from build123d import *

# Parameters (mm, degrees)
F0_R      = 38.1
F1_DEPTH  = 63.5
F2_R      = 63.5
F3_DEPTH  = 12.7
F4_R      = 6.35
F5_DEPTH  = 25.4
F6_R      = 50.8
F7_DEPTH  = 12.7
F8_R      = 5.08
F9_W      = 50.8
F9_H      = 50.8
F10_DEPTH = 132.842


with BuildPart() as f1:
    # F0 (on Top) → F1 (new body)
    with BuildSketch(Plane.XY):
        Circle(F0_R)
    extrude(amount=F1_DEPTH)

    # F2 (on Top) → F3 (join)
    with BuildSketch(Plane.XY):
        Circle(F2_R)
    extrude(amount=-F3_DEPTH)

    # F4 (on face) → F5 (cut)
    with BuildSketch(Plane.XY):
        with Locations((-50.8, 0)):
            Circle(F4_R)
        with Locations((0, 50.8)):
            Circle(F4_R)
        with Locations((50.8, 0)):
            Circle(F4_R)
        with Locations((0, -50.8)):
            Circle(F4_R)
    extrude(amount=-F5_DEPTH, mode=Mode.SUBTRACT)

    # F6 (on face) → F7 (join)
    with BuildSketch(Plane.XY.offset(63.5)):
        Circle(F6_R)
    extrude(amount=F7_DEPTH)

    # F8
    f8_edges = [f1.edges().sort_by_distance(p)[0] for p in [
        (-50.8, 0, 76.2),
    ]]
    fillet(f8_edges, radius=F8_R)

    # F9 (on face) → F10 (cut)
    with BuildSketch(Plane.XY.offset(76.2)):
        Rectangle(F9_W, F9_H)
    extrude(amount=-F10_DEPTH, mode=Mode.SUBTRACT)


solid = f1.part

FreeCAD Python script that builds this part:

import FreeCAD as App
import Part
import Sketcher
Q = App.Units.Quantity


def edges_at(feature, points):
    """Names of the edges that pass closest to the given points."""
    edges = feature.Shape.Edges
    near = lambda p: min(range(len(edges)), key=lambda i: edges[i].distToShape(Part.Vertex(*p))[0])
    return sorted({f"Edge{near(p) + 1}" for p in points})


def add_polygon(sketch, points):
    """Adds a closed chain of lines whose ends are joined by coincident constraints."""
    first, n = sketch.GeometryCount, len(points)
    for a, b in zip(points, points[1:] + points[:1]):
        sketch.addGeometry(Part.LineSegment(App.Vector(*a, 0), App.Vector(*b, 0)), False)
    for i in range(n):
        sketch.addConstraint(Sketcher.Constraint("Coincident", first + i, 2, first + (i + 1) % n, 1))

doc = App.newDocument("Part")
params = doc.addObject("Spreadsheet::Sheet", "Params")
for row, (alias, value) in enumerate([
    ("sketch1_diameter", "3 in"),
    ("pad1_length", "2.5 in"),
    ("sketch2_diameter", "5 in"),
    ("pad2_length", "0.5 in"),
    ("sketch3_diameter", "0.5 in"),
    ("pocket1_length", "1 in"),
    ("sketch4_diameter", "4 in"),
    ("pad3_length", "0.5 in"),
    ("fillet_radius", "0.2 in"),
    ("sketch5_width", "2 in"),
    ("pocket2_length", "5.23 in"),
], start=1):
    params.set(f"A{row}", alias)
    params.set(f"B{row}", "=" + value)
    params.setAlias(f"B{row}", alias)

body = doc.addObject("PartDesign::Body", "Body")

# Sketch on XY plane
sketch1 = body.newObject("Sketcher::SketchObject", "Sketch")
sketch1.AttachmentSupport = (doc.getObject("XY_Plane"), [""])
sketch1.MapMode = "FlatFace"
sketch1.addGeometry(Part.Circle(App.Vector(0, 0, 0), App.Vector(0, 0, 1), 38), False)
sketch1.addConstraint([
    Sketcher.Constraint("Coincident", 0, 3, -1, 1),
    Sketcher.Constraint("Diameter", 0, Q("3 in")),
])
sketch1.setExpression("Constraints[1]", "Params.sketch1_diameter")
pad1 = body.newObject("PartDesign::Pad", "Pad")
pad1.Profile = sketch1
pad1.setExpression("Length", "Params.pad1_length")

# Sketch on XY plane
sketch2 = body.newObject("Sketcher::SketchObject", "Sketch001")
sketch2.AttachmentSupport = (doc.getObject("XY_Plane"), [""])
sketch2.MapMode = "FlatFace"
sketch2.addGeometry(Part.Circle(App.Vector(0, 0, 0), App.Vector(0, 0, 1), 64), False)
sketch2.addConstraint([
    Sketcher.Constraint("Coincident", 0, 3, -1, 1),
    Sketcher.Constraint("Diameter", 0, Q("5 in")),
])
sketch2.setExpression("Constraints[1]", "Params.sketch2_diameter")
pad2 = body.newObject("PartDesign::Pad", "Pad001")
pad2.Profile = sketch2
pad2.setExpression("Length", "Params.pad2_length")
pad2.Reversed = True

# Sketch on XY plane
sketch3 = body.newObject("Sketcher::SketchObject", "Sketch002")
sketch3.AttachmentSupport = (doc.getObject("XY_Plane"), [""])
sketch3.MapMode = "FlatFace"
sketch3.addGeometry([
    Part.Circle(App.Vector(-51, 0, 0), App.Vector(0, 0, 1), 6),
    Part.Circle(App.Vector(0, 51, 0), App.Vector(0, 0, 1), 6),
    Part.Circle(App.Vector(51, 0, 0), App.Vector(0, 0, 1), 6),
    Part.Circle(App.Vector(0, -51, 0), App.Vector(0, 0, 1), 6),
], False)
sketch3.addConstraint([
    Sketcher.Constraint("Equal", 0, 1),
    Sketcher.Constraint("Equal", 1, 2),
    Sketcher.Constraint("Equal", 2, 3),
    Sketcher.Constraint("Symmetric", 0, 3, 2, 3, -1, 1),
    Sketcher.Constraint("Symmetric", 1, 3, 3, 3, -1, 1),
    Sketcher.Constraint("PointOnObject", 0, 3, -1),
    Sketcher.Constraint("PointOnObject", 1, 3, -2),
    Sketcher.Constraint("Diameter", 0, Q("0.5 in")),
    Sketcher.Constraint("DistanceX", 0, 3, -1, 1, Q("2 in")),
    Sketcher.Constraint("DistanceY", -1, 1, 1, 3, Q("2 in")),
])
sketch3.setExpression("Constraints[7]", "Params.sketch3_diameter")
pocket1 = body.newObject("PartDesign::Pocket", "Pocket")
pocket1.Profile = sketch3
pocket1.setExpression("Length", "Params.pocket1_length")

# Sketch on XY plane
sketch4 = body.newObject("Sketcher::SketchObject", "Sketch003")
sketch4.AttachmentSupport = (doc.getObject("XY_Plane"), [""])
sketch4.MapMode = "FlatFace"
sketch4.AttachmentOffset = App.Placement(App.Vector(0, 0, 2.5 * 25.4), App.Rotation())
sketch4.addGeometry(Part.Circle(App.Vector(0, 0, 0), App.Vector(0, 0, 1), 51), False)
sketch4.addConstraint([
    Sketcher.Constraint("Coincident", 0, 3, -1, 1),
    Sketcher.Constraint("Diameter", 0, Q("4 in")),
])
sketch4.setExpression("Constraints[1]", "Params.sketch4_diameter")
pad3 = body.newObject("PartDesign::Pad", "Pad002")
pad3.Profile = sketch4
pad3.setExpression("Length", "Params.pad3_length")
doc.recompute()

fillet = body.newObject("PartDesign::Fillet", "Fillet")
fillet.Base = (pad3, edges_at(pad3, [(-50.8, 0, 76.2)]))
fillet.setExpression("Radius", "Params.fillet_radius")

# Sketch on XY plane
sketch5 = body.newObject("Sketcher::SketchObject", "Sketch004")
sketch5.AttachmentSupport = (doc.getObject("XY_Plane"), [""])
sketch5.MapMode = "FlatFace"
sketch5.AttachmentOffset = App.Placement(App.Vector(0, 0, 3 * 25.4), App.Rotation())
add_polygon(sketch5, [(-25, 25), (-25, -25), (25, -25), (25, 25)])  # lines 0-3
sketch5.addConstraint([
    Sketcher.Constraint("Vertical", 0),
    Sketcher.Constraint("Horizontal", 1),
    Sketcher.Constraint("Vertical", 2),
    Sketcher.Constraint("Horizontal", 3),
    Sketcher.Constraint("Symmetric", 0, 2, 2, 2, -1, 1),
    Sketcher.Constraint("Equal", 3, 0),
    Sketcher.Constraint("DistanceX", 1, 1, 1, 2, Q("2 in")),
])
sketch5.setExpression("Constraints[10]", "Params.sketch5_width")
pocket2 = body.newObject("PartDesign::Pocket", "Pocket001")
pocket2.Profile = sketch5
pocket2.setExpression("Length", "Params.pocket2_length")

doc.recompute()
